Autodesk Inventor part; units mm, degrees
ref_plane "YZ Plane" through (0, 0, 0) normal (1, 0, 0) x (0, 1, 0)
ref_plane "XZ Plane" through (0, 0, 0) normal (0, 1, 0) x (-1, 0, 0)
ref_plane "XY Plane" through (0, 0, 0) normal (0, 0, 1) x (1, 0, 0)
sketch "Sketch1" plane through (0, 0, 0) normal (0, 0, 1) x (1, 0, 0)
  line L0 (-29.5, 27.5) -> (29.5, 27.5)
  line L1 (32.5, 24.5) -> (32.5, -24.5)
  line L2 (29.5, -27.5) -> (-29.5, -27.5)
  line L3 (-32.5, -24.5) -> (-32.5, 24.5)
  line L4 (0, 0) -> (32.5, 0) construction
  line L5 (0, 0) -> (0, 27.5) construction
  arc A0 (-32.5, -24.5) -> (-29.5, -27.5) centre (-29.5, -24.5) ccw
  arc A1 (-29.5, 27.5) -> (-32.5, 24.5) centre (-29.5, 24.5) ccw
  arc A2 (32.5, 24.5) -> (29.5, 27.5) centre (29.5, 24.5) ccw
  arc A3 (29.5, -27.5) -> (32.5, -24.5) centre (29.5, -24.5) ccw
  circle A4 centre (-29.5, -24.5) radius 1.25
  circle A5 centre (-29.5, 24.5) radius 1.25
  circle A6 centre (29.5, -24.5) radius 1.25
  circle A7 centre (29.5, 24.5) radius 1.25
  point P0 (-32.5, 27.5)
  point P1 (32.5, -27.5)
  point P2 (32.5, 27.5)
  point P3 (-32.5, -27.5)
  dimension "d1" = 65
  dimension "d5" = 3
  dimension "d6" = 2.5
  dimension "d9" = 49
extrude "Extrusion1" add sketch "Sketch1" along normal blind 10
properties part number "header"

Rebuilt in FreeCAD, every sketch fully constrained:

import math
import FreeCAD as App
import Part
import Sketcher

V = App.Vector

doc = App.newDocument("Part")
body = doc.addObject("PartDesign::Body", "Body")

# Sketch on XY plane
sketch1 = body.newObject("Sketcher::SketchObject", "Sketch")
sketch1.AttachmentSupport = (doc.getObject("XY_Plane"), [""])
sketch1.MapMode = "FlatFace"
sketch1.addGeometry([
    Part.LineSegment(V(29.5, 27.5, 0), V(-29.5, 27.5, 0)),  # 0
    Part.ArcOfCircle(Part.Circle(V(-29.5, 24.5, 0), V(0, 0, 1), 3), math.radians(90), math.radians(180)),  # 1
    Part.LineSegment(V(-32.5, 24.5, 0), V(-32.5, -24.5, 0)),  # 2
    Part.ArcOfCircle(Part.Circle(V(-29.5, -24.5, 0), V(0, 0, 1), 3), math.radians(180), math.radians(270)),  # 3
    Part.LineSegment(V(-29.5, -27.5, 0), V(29.5, -27.5, 0)),  # 4
    Part.ArcOfCircle(Part.Circle(V(29.5, -24.5, 0), V(0, 0, 1), 3), math.radians(-90), math.radians(0)),  # 5
    Part.LineSegment(V(32.5, -24.5, 0), V(32.5, 24.5, 0)),  # 6
    Part.ArcOfCircle(Part.Circle(V(29.5, 24.5, 0), V(0, 0, 1), 3), math.radians(0), math.radians(90)),  # 7
    Part.Circle(V(-29.5, -24.5, 0), V(0, 0, 1), 1.2),  # 8
    Part.Circle(V(29.5, -24.5, 0), V(0, 0, 1), 1.2),  # 9
    Part.Circle(V(-29.5, 24.5, 0), V(0, 0, 1), 1.2),  # 10
    Part.Circle(V(29.5, 24.5, 0), V(0, 0, 1), 1.2),  # 11
], False)
sketch1.addConstraint([
    Sketcher.Constraint("Tangent", 0, 2, 1, 1),
    Sketcher.Constraint("Tangent", 1, 2, 2, 1),
    Sketcher.Constraint("Tangent", 2, 2, 3, 1),
    Sketcher.Constraint("Tangent", 3, 2, 4, 1),
    Sketcher.Constraint("Tangent", 4, 2, 5, 1),
    Sketcher.Constraint("Tangent", 5, 2, 6, 1),
    Sketcher.Constraint("Tangent", 6, 2, 7, 1),
    Sketcher.Constraint("Tangent", 7, 2, 0, 1),
    Sketcher.Constraint("Horizontal", 0),
    Sketcher.Constraint("Vertical", 2),
    Sketcher.Constraint("Horizontal", 4),
    Sketcher.Constraint("Vertical", 6),
    Sketcher.Constraint("Coincident", 8, 3, 3, 3),
    Sketcher.Constraint("Coincident", 9, 3, 5, 3),
    Sketcher.Constraint("Coincident", 10, 3, 1, 3),
    Sketcher.Constraint("Coincident", 11, 3, 7, 3),
    Sketcher.Constraint("Equal", 1, 3),
    Sketcher.Constraint("Equal", 3, 5),
    Sketcher.Constraint("Equal", 5, 7),
    Sketcher.Constraint("Equal", 8, 9),
    Sketcher.Constraint("Equal", 9, 10),
    Sketcher.Constraint("Equal", 10, 11),
    Sketcher.Constraint("Symmetric", 1, 3, 5, 3, -1, 1),
    Sketcher.Constraint("Radius", 1, 3.0),
    Sketcher.Constraint("Diameter", 8, 2.5),
    Sketcher.Constraint("DistanceY", 2, 2, 2, 1, 49.0),
    Sketcher.Constraint("DistanceX", 0, 2, 0, 1, 59.0),
])
pad1 = body.newObject("PartDesign::Pad", "Pad")
pad1.Profile = sketch1
pad1.Length = 10

doc.recompute()
